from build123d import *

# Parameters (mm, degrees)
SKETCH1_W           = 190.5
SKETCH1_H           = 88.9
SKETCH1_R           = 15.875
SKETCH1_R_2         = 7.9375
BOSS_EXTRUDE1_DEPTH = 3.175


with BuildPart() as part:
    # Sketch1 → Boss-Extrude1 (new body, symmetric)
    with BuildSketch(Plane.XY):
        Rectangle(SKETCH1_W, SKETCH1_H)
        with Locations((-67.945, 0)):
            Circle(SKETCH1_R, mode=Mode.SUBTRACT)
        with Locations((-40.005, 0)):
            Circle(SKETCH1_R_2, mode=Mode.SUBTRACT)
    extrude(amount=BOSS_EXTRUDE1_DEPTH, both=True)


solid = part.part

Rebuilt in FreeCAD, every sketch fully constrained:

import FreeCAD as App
import Part
import Sketcher

V = App.Vector
Q = App.Units.Quantity


def add_polygon(sketch, points):
    """Adds a closed chain of lines whose ends are joined by coincident constraints."""
    first, n = sketch.GeometryCount, len(points)
    for a, b in zip(points, points[1:] + points[:1]):
        sketch.addGeometry(Part.LineSegment(App.Vector(*a, 0), App.Vector(*b, 0)), False)
    for i in range(n):
        sketch.addConstraint(Sketcher.Constraint("Coincident", first + i, 2, first + (i + 1) % n, 1))

doc = App.newDocument("Part")
params = doc.addObject("Spreadsheet::Sheet", "Params")
for row, (alias, value) in enumerate([
    ("sketch1_diameter", "1.25 in"),
    ("sketch1_diameter2", "0.625 in"),
    ("sketch1_width", "7.5 in"),
    ("sketch1_height", "3.5 in"),
    ("pad1_length", "0.25 in"),
], start=1):
    params.set(f"A{row}", alias)
    params.set(f"B{row}", "=" + value)
    params.setAlias(f"B{row}", alias)

body = doc.addObject("PartDesign::Body", "Body")

# Sketch on XY plane
sketch1 = doc.addObject("Sketcher::SketchObject", "Sketch")
body.addObject(sketch1)
sketch1.AttachmentSupport = (doc.XY_Plane, [""])
sketch1.MapMode = "FlatFace"
add_polygon(sketch1, [(-95, 44), (-95, -44), (95, -44), (95, 44)])  # lines 0-3
sketch1.addGeometry(Part.Circle(V(-68, 0, 0), V(0, 0, 1), 16), False)  # 4
sketch1.addGeometry(Part.Circle(V(-40, 0, 0), V(0, 0, 1), 8), False)  # 5
sketch1.addConstraint([
    Sketcher.Constraint("Vertical", 0),
    Sketcher.Constraint("Horizontal", 1),
    Sketcher.Constraint("Vertical", 2),
    Sketcher.Constraint("Horizontal", 3),
    Sketcher.Constraint("Symmetric", 0, 2, 2, 2, -1, 1),
    Sketcher.Constraint("PointOnObject", 4, 3, -1),
    Sketcher.Constraint("PointOnObject", 5, 3, -1),
    Sketcher.Constraint("Diameter", 4, Q("1.25 in")),
    Sketcher.Constraint("Diameter", 5, Q("0.625 in")),
    Sketcher.Constraint("DistanceX", 1, 1, 1, 2, Q("7.5 in")),
    Sketcher.Constraint("DistanceY", 0, 2, 0, 1, Q("3.5 in")),
    Sketcher.Constraint("DistanceX", 4, 3, 5, 3, Q("1.1 in")),
    Sketcher.Constraint("DistanceX", 4, 3, -1, 1, Q("2.675 in")),
])
sketch1.setExpression("Constraints[11]", "Params.sketch1_diameter")
sketch1.setExpression("Constraints[12]", "Params.sketch1_diameter2")
sketch1.setExpression("Constraints[13]", "Params.sketch1_width")
sketch1.setExpression("Constraints[14]", "Params.sketch1_height")
pad1 = doc.addObject("PartDesign::Pad", "Pad")
body.addObject(pad1)
pad1.Profile = sketch1
pad1.setExpression("Length", "Params.pad1_length")
pad1.Midplane = True

doc.recompute()
